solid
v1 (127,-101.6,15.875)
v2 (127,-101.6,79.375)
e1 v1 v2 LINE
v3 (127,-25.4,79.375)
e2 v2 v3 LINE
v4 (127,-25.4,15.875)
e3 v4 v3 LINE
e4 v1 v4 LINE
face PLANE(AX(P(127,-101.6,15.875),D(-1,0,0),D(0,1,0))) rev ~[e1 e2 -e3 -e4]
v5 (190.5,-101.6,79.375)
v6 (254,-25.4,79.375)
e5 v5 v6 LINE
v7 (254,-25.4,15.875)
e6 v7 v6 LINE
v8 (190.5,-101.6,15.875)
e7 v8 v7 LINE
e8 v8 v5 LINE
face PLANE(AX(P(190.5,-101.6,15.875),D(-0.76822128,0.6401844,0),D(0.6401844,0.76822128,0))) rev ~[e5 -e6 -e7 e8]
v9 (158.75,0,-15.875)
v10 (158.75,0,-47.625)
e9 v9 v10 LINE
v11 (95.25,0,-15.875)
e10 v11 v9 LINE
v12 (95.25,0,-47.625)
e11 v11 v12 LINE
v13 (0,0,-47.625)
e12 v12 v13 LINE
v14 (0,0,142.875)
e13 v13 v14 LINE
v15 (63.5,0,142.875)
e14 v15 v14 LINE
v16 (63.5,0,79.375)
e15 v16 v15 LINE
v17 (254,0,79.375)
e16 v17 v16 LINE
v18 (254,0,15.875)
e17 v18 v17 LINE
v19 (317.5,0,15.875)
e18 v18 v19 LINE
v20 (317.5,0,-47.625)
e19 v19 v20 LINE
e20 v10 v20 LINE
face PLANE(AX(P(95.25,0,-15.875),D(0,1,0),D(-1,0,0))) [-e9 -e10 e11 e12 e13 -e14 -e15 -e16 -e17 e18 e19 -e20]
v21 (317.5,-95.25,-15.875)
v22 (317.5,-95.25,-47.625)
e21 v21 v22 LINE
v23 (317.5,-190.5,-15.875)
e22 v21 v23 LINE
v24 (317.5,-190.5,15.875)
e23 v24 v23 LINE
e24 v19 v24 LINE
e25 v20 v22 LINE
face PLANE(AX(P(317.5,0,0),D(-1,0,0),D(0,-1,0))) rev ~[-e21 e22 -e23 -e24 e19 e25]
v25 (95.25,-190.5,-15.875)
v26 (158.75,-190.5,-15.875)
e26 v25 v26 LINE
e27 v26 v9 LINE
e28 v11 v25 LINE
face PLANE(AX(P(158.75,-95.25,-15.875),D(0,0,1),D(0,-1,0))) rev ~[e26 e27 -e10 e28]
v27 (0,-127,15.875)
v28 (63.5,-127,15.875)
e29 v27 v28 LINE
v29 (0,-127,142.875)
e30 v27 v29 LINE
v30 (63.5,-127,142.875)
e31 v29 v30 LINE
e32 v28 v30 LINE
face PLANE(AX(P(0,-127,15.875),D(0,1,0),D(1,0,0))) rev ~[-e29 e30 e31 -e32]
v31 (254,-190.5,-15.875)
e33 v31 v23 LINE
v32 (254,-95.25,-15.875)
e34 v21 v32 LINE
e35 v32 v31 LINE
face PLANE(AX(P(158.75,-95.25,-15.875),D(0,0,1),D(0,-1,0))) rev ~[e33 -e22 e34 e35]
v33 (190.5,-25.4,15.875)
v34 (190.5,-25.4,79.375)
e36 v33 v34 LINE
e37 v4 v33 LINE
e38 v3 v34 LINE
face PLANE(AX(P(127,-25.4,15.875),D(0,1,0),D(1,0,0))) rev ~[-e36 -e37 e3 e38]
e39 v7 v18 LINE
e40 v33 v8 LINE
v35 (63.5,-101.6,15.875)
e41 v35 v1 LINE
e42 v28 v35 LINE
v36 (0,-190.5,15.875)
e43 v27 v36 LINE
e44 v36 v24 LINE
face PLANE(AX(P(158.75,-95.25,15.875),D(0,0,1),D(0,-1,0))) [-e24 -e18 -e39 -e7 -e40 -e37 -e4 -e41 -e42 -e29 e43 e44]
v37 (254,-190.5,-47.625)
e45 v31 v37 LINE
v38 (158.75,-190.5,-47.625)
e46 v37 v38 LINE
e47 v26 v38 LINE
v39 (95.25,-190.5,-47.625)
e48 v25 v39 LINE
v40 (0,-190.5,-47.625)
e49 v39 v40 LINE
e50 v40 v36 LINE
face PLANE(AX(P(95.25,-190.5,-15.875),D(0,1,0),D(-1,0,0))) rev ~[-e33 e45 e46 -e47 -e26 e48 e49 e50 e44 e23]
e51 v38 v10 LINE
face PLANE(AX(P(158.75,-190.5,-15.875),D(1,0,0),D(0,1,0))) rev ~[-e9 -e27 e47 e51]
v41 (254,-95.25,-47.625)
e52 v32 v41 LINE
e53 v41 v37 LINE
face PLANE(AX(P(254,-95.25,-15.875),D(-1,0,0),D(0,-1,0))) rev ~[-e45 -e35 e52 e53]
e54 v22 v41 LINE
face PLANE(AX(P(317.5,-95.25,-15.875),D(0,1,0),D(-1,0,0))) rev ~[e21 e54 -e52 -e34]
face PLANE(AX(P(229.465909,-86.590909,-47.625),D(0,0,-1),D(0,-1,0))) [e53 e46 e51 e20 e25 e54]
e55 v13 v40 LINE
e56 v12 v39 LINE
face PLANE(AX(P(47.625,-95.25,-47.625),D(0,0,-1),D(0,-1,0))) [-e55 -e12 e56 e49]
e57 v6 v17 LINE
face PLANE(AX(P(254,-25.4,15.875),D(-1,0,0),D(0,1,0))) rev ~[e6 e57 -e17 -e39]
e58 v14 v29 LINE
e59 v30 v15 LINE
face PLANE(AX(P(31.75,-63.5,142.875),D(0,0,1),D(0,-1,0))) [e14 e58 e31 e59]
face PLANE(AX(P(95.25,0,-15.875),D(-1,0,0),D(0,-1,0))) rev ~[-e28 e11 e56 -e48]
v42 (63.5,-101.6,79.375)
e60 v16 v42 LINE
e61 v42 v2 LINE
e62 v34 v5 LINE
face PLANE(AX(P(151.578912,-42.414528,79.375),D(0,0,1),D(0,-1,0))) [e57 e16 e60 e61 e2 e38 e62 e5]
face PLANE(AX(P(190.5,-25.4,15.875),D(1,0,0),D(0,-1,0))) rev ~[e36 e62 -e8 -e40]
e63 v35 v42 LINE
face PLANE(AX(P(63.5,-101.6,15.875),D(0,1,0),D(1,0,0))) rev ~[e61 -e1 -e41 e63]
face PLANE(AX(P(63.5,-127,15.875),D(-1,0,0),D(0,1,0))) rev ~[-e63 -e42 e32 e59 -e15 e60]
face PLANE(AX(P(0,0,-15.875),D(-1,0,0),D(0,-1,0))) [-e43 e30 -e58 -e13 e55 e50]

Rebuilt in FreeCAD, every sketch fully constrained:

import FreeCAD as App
import Part
import Sketcher
Q = App.Units.Quantity

doc = App.newDocument("Part")
params = doc.addObject("Spreadsheet::Sheet", "Params")
for row, (alias, value) in enumerate([
    ("sketch1_width", "7.5 in"),
    ("sketch1_height", "12.5 in"),
    ("pad1_length", "1.25 in"),
    ("sketch2_width", "5 in"),
    ("sketch2_height", "2.5 in"),
    ("pad2_length", "5 in"),
    ("sketch3_width", "4 in"),
    ("sketch3_width2", "3 in"),
    ("sketch3_height", "7.5 in"),
    ("sketch3_height2", "2.5 in"),
    ("pad3_length", "2.5 in"),
    ("sketch4_width", "7.5 in"),
    ("sketch4_height", "2.5 in"),
    ("pad4_length", "1.25 in"),
], start=1):
    params.set(f"A{row}", alias)
    params.set(f"B{row}", "=" + value)
    params.setAlias(f"B{row}", alias)

body = doc.addObject("PartDesign::Body", "Body")

sketch1 = body.newObject("Sketcher::SketchObject", "Sketch")
sketch1.AttachmentSupport = (doc.getObject("XY_Plane"), [""])
sketch1.MapMode = "FlatFace"
sketch1.addGeometry([
    Part.LineSegment(App.Vector(0, 318, 0), App.Vector(0, 0, 0)),
    Part.LineSegment(App.Vector(0, 0, 0), App.Vector(190, 0, 0)),
    Part.LineSegment(App.Vector(190, 0, 0), App.Vector(190, 318, 0)),
    Part.LineSegment(App.Vector(190, 318, 0), App.Vector(0, 318, 0)),
], False)
sketch1.addConstraint([
    Sketcher.Constraint("Coincident", 0, 2, 1, 1),
    Sketcher.Constraint("Coincident", 1, 2, 2, 1),
    Sketcher.Constraint("Coincident", 2, 2, 3, 1),
    Sketcher.Constraint("Coincident", 3, 2, 0, 1),
    Sketcher.Constraint("Vertical", 0),
    Sketcher.Constraint("Horizontal", 1),
    Sketcher.Constraint("Vertical", 2),
    Sketcher.Constraint("Horizontal", 3),
    Sketcher.Constraint("Coincident", 0, 2, -1, 1),
    Sketcher.Constraint("DistanceX", 1, 1, 1, 2, Q("7.5 in")),
    Sketcher.Constraint("DistanceY", 0, 2, 0, 1, Q("12.5 in")),
])
sketch1.setExpression("Constraints[9]", "Params.sketch1_width")
sketch1.setExpression("Constraints[10]", "Params.sketch1_height")
pad1 = body.newObject("PartDesign::Pad", "Pad")
pad1.Profile = sketch1
pad1.setExpression("Length", "Params.pad1_length")
pad1.Midplane = True

sketch2 = body.newObject("Sketcher::SketchObject", "Sketch001")
sketch2.AttachmentSupport = (doc.getObject("XY_Plane"), [""])
sketch2.MapMode = "FlatFace"
sketch2.AttachmentOffset = App.Placement(App.Vector(0, 0, 0.625 * 25.4), App.Rotation())
sketch2.addGeometry([
    Part.LineSegment(App.Vector(0, 64, 0), App.Vector(0, 0, 0)),
    Part.LineSegment(App.Vector(0, 0, 0), App.Vector(127, 0, 0)),
    Part.LineSegment(App.Vector(127, 0, 0), App.Vector(127, 64, 0)),
    Part.LineSegment(App.Vector(127, 64, 0), App.Vector(0, 64, 0)),
], False)
sketch2.addConstraint([
    Sketcher.Constraint("Coincident", 0, 2, 1, 1),
    Sketcher.Constraint("Coincident", 1, 2, 2, 1),
    Sketcher.Constraint("Coincident", 2, 2, 3, 1),
    Sketcher.Constraint("Coincident", 3, 2, 0, 1),
    Sketcher.Constraint("Vertical", 0),
    Sketcher.Constraint("Horizontal", 1),
    Sketcher.Constraint("Vertical", 2),
    Sketcher.Constraint("Horizontal", 3),
    Sketcher.Constraint("Coincident", 0, 2, -1, 1),
    Sketcher.Constraint("DistanceX", 1, 1, 1, 2, Q("5 in")),
    Sketcher.Constraint("DistanceY", 0, 2, 0, 1, Q("2.5 in")),
])
sketch2.setExpression("Constraints[9]", "Params.sketch2_width")
sketch2.setExpression("Constraints[10]", "Params.sketch2_height")
pad2 = body.newObject("PartDesign::Pad", "Pad001")
pad2.Profile = sketch2
pad2.setExpression("Length", "Params.pad2_length")

sketch3 = body.newObject("Sketcher::SketchObject", "Sketch002")
sketch3.AttachmentSupport = (doc.getObject("XY_Plane"), [""])
sketch3.MapMode = "FlatFace"
sketch3.AttachmentOffset = App.Placement(App.Vector(0, 0, 0.625 * 25.4), App.Rotation())
sketch3.addGeometry([
    Part.LineSegment(App.Vector(0, 254, 0), App.Vector(0, 64, 0)),
    Part.LineSegment(App.Vector(0, 64, 0), App.Vector(102, 64, 0)),
    Part.LineSegment(App.Vector(102, 64, 0), App.Vector(102, 127, 0)),
    Part.LineSegment(App.Vector(102, 127, 0), App.Vector(25, 127, 0)),
    Part.LineSegment(App.Vector(25, 127, 0), App.Vector(25, 190, 0)),
    Part.LineSegment(App.Vector(25, 190, 0), App.Vector(102, 190, 0)),
    Part.LineSegment(App.Vector(102, 190, 0), App.Vector(25, 254, 0)),
    Part.LineSegment(App.Vector(25, 254, 0), App.Vector(0, 254, 0)),
], False)
sketch3.addConstraint([
    Sketcher.Constraint("Coincident", 0, 2, 1, 1),
    Sketcher.Constraint("Coincident", 1, 2, 2, 1),
    Sketcher.Constraint("Coincident", 2, 2, 3, 1),
    Sketcher.Constraint("Coincident", 3, 2, 4, 1),
    Sketcher.Constraint("Coincident", 4, 2, 5, 1),
    Sketcher.Constraint("Coincident", 5, 2, 6, 1),
    Sketcher.Constraint("Coincident", 6, 2, 7, 1),
    Sketcher.Constraint("Coincident", 7, 2, 0, 1),
    Sketcher.Constraint("Vertical", 0),
    Sketcher.Constraint("Horizontal", 1),
    Sketcher.Constraint("Vertical", 2),
    Sketcher.Constraint("Horizontal", 3),
    Sketcher.Constraint("Vertical", 4),
    Sketcher.Constraint("Horizontal", 5),
    Sketcher.Constraint("Horizontal", 7),
    Sketcher.Constraint("PointOnObject", 0, 2, -2),
    Sketcher.Constraint("Vertical", 2, 2, 5, 2),
    Sketcher.Constraint("Vertical", 4, 2, 6, 2),
    Sketcher.Constraint("Equal", 2, 4),
    Sketcher.Constraint("DistanceX", 1, 1, 1, 2, Q("4 in")),
    Sketcher.Constraint("DistanceX", 3, 2, 3, 1, Q("3 in")),
    Sketcher.Constraint("DistanceY", 0, 2, 0, 1, Q("7.5 in")),
    Sketcher.Constraint("DistanceY", 2, 1, 2, 2, Q("2.5 in")),
    Sketcher.Constraint("DistanceY", -1, 1, 2, 2, Q("5 in")),
])
sketch3.setExpression("Constraints[19]", "Params.sketch3_width")
sketch3.setExpression("Constraints[20]", "Params.sketch3_width2")
sketch3.setExpression("Constraints[21]", "Params.sketch3_height")
sketch3.setExpression("Constraints[22]", "Params.sketch3_height2")
pad3 = body.newObject("PartDesign::Pad", "Pad002")
pad3.Profile = sketch3
pad3.setExpression("Length", "Params.pad3_length")

sketch4 = body.newObject("Sketcher::SketchObject", "Sketch003")
sketch4.AttachmentSupport = (doc.getObject("XY_Plane"), [""])
sketch4.MapMode = "FlatFace"
sketch4.AttachmentOffset = App.Placement(App.Vector(0, 0, -0.625 * 25.4), App.Rotation())
sketch4.addGeometry([
    Part.LineSegment(App.Vector(0, 0, 0), App.Vector(0, 95, 0)),
    Part.LineSegment(App.Vector(0, 95, 0), App.Vector(190, 95, 0)),
    Part.LineSegment(App.Vector(190, 95, 0), App.Vector(190, 0, 0)),
    Part.LineSegment(App.Vector(190, 0, 0), App.Vector(0, 0, 0)),
    Part.LineSegment(App.Vector(190, 254, 0), App.Vector(190, 159, 0)),
    Part.LineSegment(App.Vector(190, 159, 0), App.Vector(0, 159, 0)),
    Part.LineSegment(App.Vector(0, 159, 0), App.Vector(0, 318, 0)),
    Part.LineSegment(App.Vector(0, 318, 0), App.Vector(95, 318, 0)),
    Part.LineSegment(App.Vector(95, 318, 0), App.Vector(95, 254, 0)),
    Part.LineSegment(App.Vector(95, 254, 0), App.Vector(190, 254, 0)),
], False)
sketch4.addConstraint([
    Sketcher.Constraint("Coincident", 0, 2, 1, 1),
    Sketcher.Constraint("Coincident", 1, 2, 2, 1),
    Sketcher.Constraint("Coincident", 2, 2, 3, 1),
    Sketcher.Constraint("Coincident", 3, 2, 0, 1),
    Sketcher.Constraint("Coincident", 4, 2, 5, 1),
    Sketcher.Constraint("Coincident", 5, 2, 6, 1),
    Sketcher.Constraint("Coincident", 6, 2, 7, 1),
    Sketcher.Constraint("Coincident", 7, 2, 8, 1),
    Sketcher.Constraint("Coincident", 8, 2, 9, 1),
    Sketcher.Constraint("Coincident", 9, 2, 4, 1),
    Sketcher.Constraint("Vertical", 0),
    Sketcher.Constraint("Horizontal", 1),
    Sketcher.Constraint("Vertical", 2),
    Sketcher.Constraint("Horizontal", 3),
    Sketcher.Constraint("Vertical", 4),
    Sketcher.Constraint("Horizontal", 5),
    Sketcher.Constraint("Vertical", 6),
    Sketcher.Constraint("Horizontal", 7),
    Sketcher.Constraint("Vertical", 8),
    Sketcher.Constraint("Horizontal", 9),
    Sketcher.Constraint("Coincident", 3, 2, -1, 1),
    Sketcher.Constraint("PointOnObject", 5, 2, -2),
    Sketcher.Constraint("Vertical", 2, 2, 4, 2),
    Sketcher.Constraint("Equal", 7, 9),
    Sketcher.Constraint("Equal", 9, 0),
    Sketcher.Constraint("Equal", 2, 4),
    Sketcher.Constraint("DistanceX", 1, 1, 1, 2, Q("7.5 in")),
    Sketcher.Constraint("DistanceY", 8, 2, 8, 1, Q("2.5 in")),
    Sketcher.Constraint("DistanceY", -1, 1, 8, 2, Q("10 in")),
])
sketch4.setExpression("Constraints[26]", "Params.sketch4_width")
sketch4.setExpression("Constraints[27]", "Params.sketch4_height")
pad4 = body.newObject("PartDesign::Pad", "Pad003")
pad4.Profile = sketch4
pad4.setExpression("Length", "Params.pad4_length")
pad4.Reversed = True
body2 = doc.addObject("PartDesign::Body", "Body001")
doc.recompute()

body.Placement = App.Placement(App.Vector(0, 0, 0), App.Rotation(App.Vector(0, 0, -1), 90))
boolean = body2.newObject("PartDesign::Boolean", "Boolean")
boolean.Type = "Fuse"
boolean.addObjects([body])

doc.recompute()
